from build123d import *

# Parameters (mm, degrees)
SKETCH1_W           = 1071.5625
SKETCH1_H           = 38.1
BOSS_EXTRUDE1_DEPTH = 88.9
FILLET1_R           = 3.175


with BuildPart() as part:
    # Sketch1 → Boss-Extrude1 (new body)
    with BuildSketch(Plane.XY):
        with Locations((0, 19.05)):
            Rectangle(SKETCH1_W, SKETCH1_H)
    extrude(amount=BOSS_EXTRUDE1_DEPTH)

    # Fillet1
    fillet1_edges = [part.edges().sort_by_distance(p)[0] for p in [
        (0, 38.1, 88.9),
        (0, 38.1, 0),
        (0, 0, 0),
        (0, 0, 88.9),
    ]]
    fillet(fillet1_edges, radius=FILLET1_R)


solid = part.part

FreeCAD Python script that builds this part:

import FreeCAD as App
import Part
import Sketcher

V = App.Vector
Q = App.Units.Quantity


def edges_at(feature, points):
    """Names of the edges that pass closest to the given points."""
    edges = feature.Shape.Edges
    near = lambda p: min(range(len(edges)), key=lambda i: edges[i].distToShape(Part.Vertex(*p))[0])
    return sorted({f"Edge{near(p) + 1}" for p in points})


def add_polygon(sketch, points):
    """Adds a closed chain of lines whose ends are joined by coincident constraints."""
    first, n = sketch.GeometryCount, len(points)
    for a, b in zip(points, points[1:] + points[:1]):
        sketch.addGeometry(Part.LineSegment(App.Vector(*a, 0), App.Vector(*b, 0)), False)
    for i in range(n):
        sketch.addConstraint(Sketcher.Constraint("Coincident", first + i, 2, first + (i + 1) % n, 1))

doc = App.newDocument("Part")
params = doc.addObject("Spreadsheet::Sheet", "Params")
for row, (alias, value) in enumerate([
    ("sketch1_height", "1.5 in"),
    ("sketch1_width", "42.1875 in"),
    ("pad1_length", "3.5 in"),
    ("fillet_radius", "0.125 in"),
], start=1):
    params.set(f"A{row}", alias)
    params.set(f"B{row}", "=" + value)
    params.setAlias(f"B{row}", alias)

body = doc.addObject("PartDesign::Body", "Body")

sketch1 = body.newObject("Sketcher::SketchObject", "Sketch")
sketch1.AttachmentSupport = (doc.getObject("XY_Plane"), [""])
sketch1.MapMode = "FlatFace"
add_polygon(sketch1, [(-536, 38), (-536, 0), (536, 0), (536, 38)])
sketch1.addConstraint(Sketcher.Constraint("Vertical", 0))
sketch1.addConstraint(Sketcher.Constraint("Horizontal", 1))
sketch1.addConstraint(Sketcher.Constraint("Vertical", 2))
sketch1.addConstraint(Sketcher.Constraint("Horizontal", 3))
sketch1.addConstraint(Sketcher.Constraint("Symmetric", 0, 2, 1, 2, -1, 1))
sketch1.addConstraint(Sketcher.Constraint("DistanceY", 0, 2, 0, 1, Q("1.5 in")))
sketch1.addConstraint(Sketcher.Constraint("DistanceX", 1, 1, 1, 2, Q("42.1875 in")))
sketch1.setExpression("Constraints[9]", "Params.sketch1_height")
sketch1.setExpression("Constraints[10]", "Params.sketch1_width")
pad1 = body.newObject("PartDesign::Pad", "Pad")
pad1.Profile = sketch1
pad1.setExpression("Length", "Params.pad1_length")
doc.recompute()

fillet = body.newObject("PartDesign::Fillet", "Fillet")
fillet.Base = (pad1, edges_at(pad1, [
    (0, 38.1, 88.9),
    (0, 38.1, 0),
    (0, 0, 0),
    (0, 0, 88.9),
]))
fillet.setExpression("Radius", "Params.fillet_radius")

doc.recompute()
